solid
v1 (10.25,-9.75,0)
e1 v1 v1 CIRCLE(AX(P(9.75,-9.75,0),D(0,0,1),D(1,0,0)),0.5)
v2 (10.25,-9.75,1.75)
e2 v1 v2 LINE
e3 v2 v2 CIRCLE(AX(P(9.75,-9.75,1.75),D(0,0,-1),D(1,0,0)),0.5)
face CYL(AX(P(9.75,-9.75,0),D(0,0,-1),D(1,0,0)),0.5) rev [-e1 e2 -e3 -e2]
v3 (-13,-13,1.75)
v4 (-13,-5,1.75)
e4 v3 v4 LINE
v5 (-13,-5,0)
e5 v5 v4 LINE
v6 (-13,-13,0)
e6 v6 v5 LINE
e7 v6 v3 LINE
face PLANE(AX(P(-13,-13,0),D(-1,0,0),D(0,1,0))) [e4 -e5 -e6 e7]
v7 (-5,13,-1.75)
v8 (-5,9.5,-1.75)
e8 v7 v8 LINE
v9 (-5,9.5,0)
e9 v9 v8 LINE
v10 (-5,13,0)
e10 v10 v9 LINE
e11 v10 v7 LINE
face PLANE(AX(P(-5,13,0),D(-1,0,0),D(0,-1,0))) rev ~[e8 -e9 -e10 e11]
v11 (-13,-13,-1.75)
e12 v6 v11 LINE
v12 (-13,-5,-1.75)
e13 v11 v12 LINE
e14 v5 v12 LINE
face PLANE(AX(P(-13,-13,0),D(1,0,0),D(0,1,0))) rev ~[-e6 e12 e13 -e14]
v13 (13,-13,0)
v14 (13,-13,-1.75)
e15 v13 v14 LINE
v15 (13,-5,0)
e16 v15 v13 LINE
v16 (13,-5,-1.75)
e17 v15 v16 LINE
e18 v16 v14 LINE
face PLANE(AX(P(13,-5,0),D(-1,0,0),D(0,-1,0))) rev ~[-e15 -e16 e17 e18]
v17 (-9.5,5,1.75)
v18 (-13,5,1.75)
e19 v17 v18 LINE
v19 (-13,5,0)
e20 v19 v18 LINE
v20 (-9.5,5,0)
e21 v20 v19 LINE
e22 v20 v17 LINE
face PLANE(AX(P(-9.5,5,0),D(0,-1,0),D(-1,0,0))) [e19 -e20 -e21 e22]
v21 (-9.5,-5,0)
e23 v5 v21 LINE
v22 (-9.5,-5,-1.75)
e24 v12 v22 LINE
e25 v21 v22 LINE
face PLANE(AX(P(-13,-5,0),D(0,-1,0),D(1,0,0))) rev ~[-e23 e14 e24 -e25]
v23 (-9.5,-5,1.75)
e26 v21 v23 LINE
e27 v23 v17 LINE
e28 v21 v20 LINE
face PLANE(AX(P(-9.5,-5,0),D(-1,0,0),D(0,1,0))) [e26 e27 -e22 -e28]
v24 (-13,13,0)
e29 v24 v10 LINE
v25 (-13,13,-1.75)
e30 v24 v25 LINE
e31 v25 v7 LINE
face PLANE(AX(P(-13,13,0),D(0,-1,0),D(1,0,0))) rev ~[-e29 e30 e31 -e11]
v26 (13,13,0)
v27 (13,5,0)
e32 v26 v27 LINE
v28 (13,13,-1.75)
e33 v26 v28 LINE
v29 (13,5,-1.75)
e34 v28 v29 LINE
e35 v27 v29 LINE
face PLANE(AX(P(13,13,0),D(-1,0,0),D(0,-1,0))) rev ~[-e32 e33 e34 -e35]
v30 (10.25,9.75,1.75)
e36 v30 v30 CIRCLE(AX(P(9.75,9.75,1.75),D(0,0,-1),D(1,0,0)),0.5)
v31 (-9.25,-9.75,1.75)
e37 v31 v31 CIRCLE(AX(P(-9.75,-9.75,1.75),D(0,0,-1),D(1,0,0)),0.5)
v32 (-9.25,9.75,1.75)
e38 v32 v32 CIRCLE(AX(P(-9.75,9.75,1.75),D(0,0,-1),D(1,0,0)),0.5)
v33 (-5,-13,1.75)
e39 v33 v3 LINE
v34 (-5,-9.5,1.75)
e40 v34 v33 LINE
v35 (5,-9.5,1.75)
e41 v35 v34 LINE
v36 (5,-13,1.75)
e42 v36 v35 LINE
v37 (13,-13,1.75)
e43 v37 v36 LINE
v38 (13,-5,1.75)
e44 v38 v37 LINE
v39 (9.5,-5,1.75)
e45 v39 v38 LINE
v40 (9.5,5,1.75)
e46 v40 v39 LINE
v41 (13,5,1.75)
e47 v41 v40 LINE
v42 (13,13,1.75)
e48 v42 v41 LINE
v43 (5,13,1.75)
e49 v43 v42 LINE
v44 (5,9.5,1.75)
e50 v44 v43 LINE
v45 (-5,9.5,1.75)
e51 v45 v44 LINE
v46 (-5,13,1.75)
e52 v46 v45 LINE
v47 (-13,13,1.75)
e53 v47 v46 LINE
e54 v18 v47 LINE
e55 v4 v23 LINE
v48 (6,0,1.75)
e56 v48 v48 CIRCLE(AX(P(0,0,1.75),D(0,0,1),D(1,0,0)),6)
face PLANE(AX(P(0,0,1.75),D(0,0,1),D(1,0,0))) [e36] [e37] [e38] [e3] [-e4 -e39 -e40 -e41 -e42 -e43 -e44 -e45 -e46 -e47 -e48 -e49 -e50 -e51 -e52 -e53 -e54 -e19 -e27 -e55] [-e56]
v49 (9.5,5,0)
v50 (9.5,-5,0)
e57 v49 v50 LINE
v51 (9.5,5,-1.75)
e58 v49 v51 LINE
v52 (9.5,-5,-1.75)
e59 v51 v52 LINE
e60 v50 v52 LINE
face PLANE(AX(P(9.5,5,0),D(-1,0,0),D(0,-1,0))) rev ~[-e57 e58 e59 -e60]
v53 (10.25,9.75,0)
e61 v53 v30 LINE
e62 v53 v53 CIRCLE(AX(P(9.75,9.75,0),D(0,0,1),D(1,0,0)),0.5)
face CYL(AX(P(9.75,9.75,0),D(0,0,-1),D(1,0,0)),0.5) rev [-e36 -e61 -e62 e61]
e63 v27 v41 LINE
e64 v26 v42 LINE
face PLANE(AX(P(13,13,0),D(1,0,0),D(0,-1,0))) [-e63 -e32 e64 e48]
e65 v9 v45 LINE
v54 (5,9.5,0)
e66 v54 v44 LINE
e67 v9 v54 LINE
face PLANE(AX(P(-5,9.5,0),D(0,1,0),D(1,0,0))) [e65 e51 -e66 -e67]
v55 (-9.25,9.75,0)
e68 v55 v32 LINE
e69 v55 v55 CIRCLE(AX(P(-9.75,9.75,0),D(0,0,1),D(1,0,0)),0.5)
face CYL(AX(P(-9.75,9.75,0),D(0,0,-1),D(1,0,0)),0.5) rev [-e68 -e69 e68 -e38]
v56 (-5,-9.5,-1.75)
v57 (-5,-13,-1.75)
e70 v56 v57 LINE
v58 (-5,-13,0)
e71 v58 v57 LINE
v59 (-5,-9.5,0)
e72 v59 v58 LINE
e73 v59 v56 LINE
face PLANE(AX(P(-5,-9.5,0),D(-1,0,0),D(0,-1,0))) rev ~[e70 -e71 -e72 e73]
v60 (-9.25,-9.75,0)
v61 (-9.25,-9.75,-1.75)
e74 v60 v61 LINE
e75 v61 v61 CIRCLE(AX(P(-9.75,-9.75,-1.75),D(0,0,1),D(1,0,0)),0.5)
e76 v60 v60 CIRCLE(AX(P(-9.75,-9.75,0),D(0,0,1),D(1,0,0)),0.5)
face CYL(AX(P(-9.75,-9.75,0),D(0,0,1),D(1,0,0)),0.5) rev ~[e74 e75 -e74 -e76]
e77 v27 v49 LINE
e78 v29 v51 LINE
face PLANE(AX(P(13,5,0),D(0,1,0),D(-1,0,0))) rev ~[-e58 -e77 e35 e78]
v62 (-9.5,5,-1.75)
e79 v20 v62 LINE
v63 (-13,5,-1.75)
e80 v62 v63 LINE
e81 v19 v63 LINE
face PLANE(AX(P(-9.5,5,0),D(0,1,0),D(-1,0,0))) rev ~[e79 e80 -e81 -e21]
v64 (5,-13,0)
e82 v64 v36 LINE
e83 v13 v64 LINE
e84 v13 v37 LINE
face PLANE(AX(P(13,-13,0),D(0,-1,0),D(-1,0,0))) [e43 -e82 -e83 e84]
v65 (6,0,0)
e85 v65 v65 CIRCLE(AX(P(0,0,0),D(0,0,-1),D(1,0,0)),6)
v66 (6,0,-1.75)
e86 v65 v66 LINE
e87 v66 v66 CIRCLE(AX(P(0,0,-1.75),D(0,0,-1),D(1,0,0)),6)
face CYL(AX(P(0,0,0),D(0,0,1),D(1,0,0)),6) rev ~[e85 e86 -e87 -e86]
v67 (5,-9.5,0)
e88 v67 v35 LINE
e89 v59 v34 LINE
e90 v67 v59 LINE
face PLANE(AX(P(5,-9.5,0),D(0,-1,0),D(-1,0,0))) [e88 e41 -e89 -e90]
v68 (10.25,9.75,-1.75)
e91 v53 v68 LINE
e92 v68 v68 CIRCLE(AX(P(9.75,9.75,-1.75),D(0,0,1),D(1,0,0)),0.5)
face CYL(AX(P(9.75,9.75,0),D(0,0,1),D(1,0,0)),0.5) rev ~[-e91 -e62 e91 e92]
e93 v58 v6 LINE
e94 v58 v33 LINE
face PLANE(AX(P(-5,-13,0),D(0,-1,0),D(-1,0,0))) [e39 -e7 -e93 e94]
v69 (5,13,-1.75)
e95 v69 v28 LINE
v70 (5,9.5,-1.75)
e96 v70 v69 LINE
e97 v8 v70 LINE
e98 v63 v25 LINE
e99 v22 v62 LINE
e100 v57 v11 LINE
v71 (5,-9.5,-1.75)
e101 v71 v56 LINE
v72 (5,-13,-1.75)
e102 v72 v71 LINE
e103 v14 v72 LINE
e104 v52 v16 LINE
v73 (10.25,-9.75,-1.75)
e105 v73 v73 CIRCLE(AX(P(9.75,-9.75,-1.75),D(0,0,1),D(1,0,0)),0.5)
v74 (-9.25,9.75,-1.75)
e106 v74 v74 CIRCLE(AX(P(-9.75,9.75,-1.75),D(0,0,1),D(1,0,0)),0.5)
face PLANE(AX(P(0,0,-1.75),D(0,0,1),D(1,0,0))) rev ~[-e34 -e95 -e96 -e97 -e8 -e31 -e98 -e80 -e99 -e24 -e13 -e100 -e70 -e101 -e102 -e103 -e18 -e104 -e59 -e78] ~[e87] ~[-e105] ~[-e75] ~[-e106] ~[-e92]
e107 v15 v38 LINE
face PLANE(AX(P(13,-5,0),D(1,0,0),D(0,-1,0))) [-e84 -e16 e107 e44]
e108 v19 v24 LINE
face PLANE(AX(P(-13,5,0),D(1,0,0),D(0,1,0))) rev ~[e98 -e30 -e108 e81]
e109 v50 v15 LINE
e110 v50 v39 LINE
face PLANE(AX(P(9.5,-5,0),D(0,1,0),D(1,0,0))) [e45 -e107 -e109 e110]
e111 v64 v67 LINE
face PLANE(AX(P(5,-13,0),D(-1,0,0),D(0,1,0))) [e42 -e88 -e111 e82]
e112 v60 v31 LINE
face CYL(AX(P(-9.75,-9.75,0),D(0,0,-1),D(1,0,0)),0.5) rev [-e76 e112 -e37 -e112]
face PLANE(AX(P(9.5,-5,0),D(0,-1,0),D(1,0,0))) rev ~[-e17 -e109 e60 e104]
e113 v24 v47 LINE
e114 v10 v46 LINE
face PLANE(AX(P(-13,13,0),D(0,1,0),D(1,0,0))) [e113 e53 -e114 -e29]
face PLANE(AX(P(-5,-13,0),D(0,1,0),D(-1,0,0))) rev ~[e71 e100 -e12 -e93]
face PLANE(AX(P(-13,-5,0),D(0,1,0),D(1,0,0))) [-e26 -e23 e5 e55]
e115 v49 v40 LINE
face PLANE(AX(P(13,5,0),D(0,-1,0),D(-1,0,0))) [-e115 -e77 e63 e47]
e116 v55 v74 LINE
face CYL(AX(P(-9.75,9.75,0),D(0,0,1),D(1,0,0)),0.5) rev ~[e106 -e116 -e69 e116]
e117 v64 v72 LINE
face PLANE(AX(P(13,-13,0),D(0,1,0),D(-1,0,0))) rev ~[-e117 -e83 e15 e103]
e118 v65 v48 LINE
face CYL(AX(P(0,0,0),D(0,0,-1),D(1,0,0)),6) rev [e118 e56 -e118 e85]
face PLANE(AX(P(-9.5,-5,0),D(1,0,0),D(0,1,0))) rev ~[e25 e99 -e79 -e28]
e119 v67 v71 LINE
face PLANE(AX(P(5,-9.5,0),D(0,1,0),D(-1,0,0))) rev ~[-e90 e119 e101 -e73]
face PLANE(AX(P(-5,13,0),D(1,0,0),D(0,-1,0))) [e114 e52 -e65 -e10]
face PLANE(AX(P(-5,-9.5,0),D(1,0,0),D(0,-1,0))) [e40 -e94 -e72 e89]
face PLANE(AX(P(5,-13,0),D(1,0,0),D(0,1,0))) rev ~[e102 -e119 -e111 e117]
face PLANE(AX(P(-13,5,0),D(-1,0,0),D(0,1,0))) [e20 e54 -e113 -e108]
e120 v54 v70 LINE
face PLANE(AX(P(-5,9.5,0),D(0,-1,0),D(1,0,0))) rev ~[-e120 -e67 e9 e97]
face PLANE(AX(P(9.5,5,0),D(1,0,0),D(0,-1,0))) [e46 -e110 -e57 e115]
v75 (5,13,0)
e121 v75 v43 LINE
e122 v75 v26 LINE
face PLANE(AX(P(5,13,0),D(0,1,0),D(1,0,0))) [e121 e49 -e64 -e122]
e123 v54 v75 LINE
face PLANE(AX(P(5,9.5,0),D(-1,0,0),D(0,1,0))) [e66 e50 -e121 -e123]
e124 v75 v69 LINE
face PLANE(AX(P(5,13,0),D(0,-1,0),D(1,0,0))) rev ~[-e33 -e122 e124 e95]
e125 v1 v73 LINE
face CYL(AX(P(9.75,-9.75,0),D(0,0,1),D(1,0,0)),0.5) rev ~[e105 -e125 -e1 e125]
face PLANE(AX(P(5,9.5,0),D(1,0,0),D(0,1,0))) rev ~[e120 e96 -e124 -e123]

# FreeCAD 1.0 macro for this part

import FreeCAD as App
import Part
import Sketcher

V = App.Vector

doc = App.newDocument("Part")
body = doc.addObject("PartDesign::Body", "Body")

sketch1 = body.newObject("Sketcher::SketchObject", "Sketch")
sketch1.AttachmentSupport = (doc.getObject("XY_Plane"), [""])
sketch1.MapMode = "FlatFace"
sketch1.addGeometry([
    Part.LineSegment(V(13, 5, 0), V(13, 13, 0)),
    Part.LineSegment(V(13, 13, 0), V(5, 13, 0)),
    Part.LineSegment(V(5, 13, 0), V(5, 9.5, 0)),
    Part.LineSegment(V(5, 9.5, 0), V(-5, 9.5, 0)),
    Part.LineSegment(V(-5, 9.5, 0), V(-5, 13, 0)),
    Part.LineSegment(V(-5, 13, 0), V(-13, 13, 0)),
    Part.LineSegment(V(-13, 13, 0), V(-13, 5, 0)),
    Part.LineSegment(V(-13, 5, 0), V(-9.5, 5, 0)),
    Part.LineSegment(V(-9.5, 5, 0), V(-9.5, -5, 0)),
    Part.LineSegment(V(-9.5, -5, 0), V(-13, -5, 0)),
    Part.LineSegment(V(-13, -5, 0), V(-13, -13, 0)),
    Part.LineSegment(V(-13, -13, 0), V(-5, -13, 0)),
    Part.LineSegment(V(-5, -13, 0), V(-5, -9.5, 0)),
    Part.LineSegment(V(-5, -9.5, 0), V(5, -9.5, 0)),
    Part.LineSegment(V(5, -9.5, 0), V(5, -13, 0)),
    Part.LineSegment(V(5, -13, 0), V(13, -13, 0)),
    Part.LineSegment(V(13, -13, 0), V(13, -5, 0)),
    Part.LineSegment(V(13, -5, 0), V(9.5, -5, 0)),
    Part.LineSegment(V(9.5, -5, 0), V(9.5, 5, 0)),
    Part.LineSegment(V(9.5, 5, 0), V(13, 5, 0)),
    Part.Circle(V(0, 0, 0), V(0, 0, 1), 6),
    Part.Circle(V(9.8, 9.8, 0), V(0, 0, 1), 0.5),
    Part.Circle(V(9.8, -9.8, 0), V(0, 0, 1), 0.5),
    Part.Circle(V(-9.8, 9.8, 0), V(0, 0, 1), 0.5),
    Part.Circle(V(-9.8, -9.8, 0), V(0, 0, 1), 0.5),
], False)
sketch1.addConstraint([
    Sketcher.Constraint("Coincident", 0, 2, 1, 1),
    Sketcher.Constraint("Coincident", 1, 2, 2, 1),
    Sketcher.Constraint("Coincident", 2, 2, 3, 1),
    Sketcher.Constraint("Coincident", 3, 2, 4, 1),
    Sketcher.Constraint("Coincident", 4, 2, 5, 1),
    Sketcher.Constraint("Coincident", 5, 2, 6, 1),
    Sketcher.Constraint("Coincident", 6, 2, 7, 1),
    Sketcher.Constraint("Coincident", 7, 2, 8, 1),
    Sketcher.Constraint("Coincident", 8, 2, 9, 1),
    Sketcher.Constraint("Coincident", 9, 2, 10, 1),
    Sketcher.Constraint("Coincident", 10, 2, 11, 1),
    Sketcher.Constraint("Coincident", 11, 2, 12, 1),
    Sketcher.Constraint("Coincident", 12, 2, 13, 1),
    Sketcher.Constraint("Coincident", 13, 2, 14, 1),
    Sketcher.Constraint("Coincident", 14, 2, 15, 1),
    Sketcher.Constraint("Coincident", 15, 2, 16, 1),
    Sketcher.Constraint("Coincident", 16, 2, 17, 1),
    Sketcher.Constraint("Coincident", 17, 2, 18, 1),
    Sketcher.Constraint("Coincident", 18, 2, 19, 1),
    Sketcher.Constraint("Coincident", 19, 2, 0, 1),
    Sketcher.Constraint("Vertical", 0),
    Sketcher.Constraint("Horizontal", 1),
    Sketcher.Constraint("Vertical", 2),
    Sketcher.Constraint("Horizontal", 3),
    Sketcher.Constraint("Vertical", 4),
    Sketcher.Constraint("Horizontal", 5),
    Sketcher.Constraint("Vertical", 6),
    Sketcher.Constraint("Horizontal", 7),
    Sketcher.Constraint("Vertical", 8),
    Sketcher.Constraint("Horizontal", 9),
    Sketcher.Constraint("Vertical", 10),
    Sketcher.Constraint("Horizontal", 11),
    Sketcher.Constraint("Vertical", 12),
    Sketcher.Constraint("Horizontal", 13),
    Sketcher.Constraint("Vertical", 14),
    Sketcher.Constraint("Horizontal", 15),
    Sketcher.Constraint("Vertical", 16),
    Sketcher.Constraint("Horizontal", 17),
    Sketcher.Constraint("Vertical", 18),
    Sketcher.Constraint("Horizontal", 19),
    Sketcher.Constraint("Coincident", 20, 3, -1, 1),
    Sketcher.Constraint("Equal", 21, 22),
    Sketcher.Constraint("Equal", 22, 23),
    Sketcher.Constraint("Equal", 23, 24),
    Sketcher.Constraint("Symmetric", 22, 3, 23, 3, -1, 1),
    Sketcher.Constraint("Symmetric", 21, 3, 24, 3, -1, 1),
    Sketcher.Constraint("Symmetric", 0, 2, 10, 2, -1, 1),
    Sketcher.Constraint("Symmetric", 2, 2, 12, 2, -1, 1),
    Sketcher.Constraint("Symmetric", 4, 2, 14, 2, -1, 1),
    Sketcher.Constraint("Symmetric", 6, 2, 16, 2, -1, 1),
    Sketcher.Constraint("Symmetric", 8, 2, 18, 2, -1, 1),
    Sketcher.Constraint("Symmetric", 21, 3, 23, 3, -2),
    Sketcher.Constraint("Symmetric", 1, 2, 4, 2, -2),
    Sketcher.Constraint("Symmetric", 9, 2, 16, 2, -2),
    Sketcher.Constraint("Equal", 15, 0),
    Sketcher.Constraint("Equal", 19, 2),
    Sketcher.Constraint("Equal", 13, 8),
    Sketcher.Constraint("Diameter", 20, 12.0),
    Sketcher.Constraint("Diameter", 21, 1.0),
    Sketcher.Constraint("DistanceX", 3, 2, 3, 1, 10.0),
    Sketcher.Constraint("DistanceX", 7, 1, 7, 2, 3.5),
    Sketcher.Constraint("DistanceX", 1, 2, 1, 1, 8.0),
    Sketcher.Constraint("DistanceY", 22, 3, 21, 3, 19.5),
    Sketcher.Constraint("DistanceX", 23, 3, 21, 3, 19.5),
])
pad1 = body.newObject("PartDesign::Pad", "Pad")
pad1.Profile = sketch1
pad1.Length = 3.5
pad1.Midplane = True

doc.recompute()
